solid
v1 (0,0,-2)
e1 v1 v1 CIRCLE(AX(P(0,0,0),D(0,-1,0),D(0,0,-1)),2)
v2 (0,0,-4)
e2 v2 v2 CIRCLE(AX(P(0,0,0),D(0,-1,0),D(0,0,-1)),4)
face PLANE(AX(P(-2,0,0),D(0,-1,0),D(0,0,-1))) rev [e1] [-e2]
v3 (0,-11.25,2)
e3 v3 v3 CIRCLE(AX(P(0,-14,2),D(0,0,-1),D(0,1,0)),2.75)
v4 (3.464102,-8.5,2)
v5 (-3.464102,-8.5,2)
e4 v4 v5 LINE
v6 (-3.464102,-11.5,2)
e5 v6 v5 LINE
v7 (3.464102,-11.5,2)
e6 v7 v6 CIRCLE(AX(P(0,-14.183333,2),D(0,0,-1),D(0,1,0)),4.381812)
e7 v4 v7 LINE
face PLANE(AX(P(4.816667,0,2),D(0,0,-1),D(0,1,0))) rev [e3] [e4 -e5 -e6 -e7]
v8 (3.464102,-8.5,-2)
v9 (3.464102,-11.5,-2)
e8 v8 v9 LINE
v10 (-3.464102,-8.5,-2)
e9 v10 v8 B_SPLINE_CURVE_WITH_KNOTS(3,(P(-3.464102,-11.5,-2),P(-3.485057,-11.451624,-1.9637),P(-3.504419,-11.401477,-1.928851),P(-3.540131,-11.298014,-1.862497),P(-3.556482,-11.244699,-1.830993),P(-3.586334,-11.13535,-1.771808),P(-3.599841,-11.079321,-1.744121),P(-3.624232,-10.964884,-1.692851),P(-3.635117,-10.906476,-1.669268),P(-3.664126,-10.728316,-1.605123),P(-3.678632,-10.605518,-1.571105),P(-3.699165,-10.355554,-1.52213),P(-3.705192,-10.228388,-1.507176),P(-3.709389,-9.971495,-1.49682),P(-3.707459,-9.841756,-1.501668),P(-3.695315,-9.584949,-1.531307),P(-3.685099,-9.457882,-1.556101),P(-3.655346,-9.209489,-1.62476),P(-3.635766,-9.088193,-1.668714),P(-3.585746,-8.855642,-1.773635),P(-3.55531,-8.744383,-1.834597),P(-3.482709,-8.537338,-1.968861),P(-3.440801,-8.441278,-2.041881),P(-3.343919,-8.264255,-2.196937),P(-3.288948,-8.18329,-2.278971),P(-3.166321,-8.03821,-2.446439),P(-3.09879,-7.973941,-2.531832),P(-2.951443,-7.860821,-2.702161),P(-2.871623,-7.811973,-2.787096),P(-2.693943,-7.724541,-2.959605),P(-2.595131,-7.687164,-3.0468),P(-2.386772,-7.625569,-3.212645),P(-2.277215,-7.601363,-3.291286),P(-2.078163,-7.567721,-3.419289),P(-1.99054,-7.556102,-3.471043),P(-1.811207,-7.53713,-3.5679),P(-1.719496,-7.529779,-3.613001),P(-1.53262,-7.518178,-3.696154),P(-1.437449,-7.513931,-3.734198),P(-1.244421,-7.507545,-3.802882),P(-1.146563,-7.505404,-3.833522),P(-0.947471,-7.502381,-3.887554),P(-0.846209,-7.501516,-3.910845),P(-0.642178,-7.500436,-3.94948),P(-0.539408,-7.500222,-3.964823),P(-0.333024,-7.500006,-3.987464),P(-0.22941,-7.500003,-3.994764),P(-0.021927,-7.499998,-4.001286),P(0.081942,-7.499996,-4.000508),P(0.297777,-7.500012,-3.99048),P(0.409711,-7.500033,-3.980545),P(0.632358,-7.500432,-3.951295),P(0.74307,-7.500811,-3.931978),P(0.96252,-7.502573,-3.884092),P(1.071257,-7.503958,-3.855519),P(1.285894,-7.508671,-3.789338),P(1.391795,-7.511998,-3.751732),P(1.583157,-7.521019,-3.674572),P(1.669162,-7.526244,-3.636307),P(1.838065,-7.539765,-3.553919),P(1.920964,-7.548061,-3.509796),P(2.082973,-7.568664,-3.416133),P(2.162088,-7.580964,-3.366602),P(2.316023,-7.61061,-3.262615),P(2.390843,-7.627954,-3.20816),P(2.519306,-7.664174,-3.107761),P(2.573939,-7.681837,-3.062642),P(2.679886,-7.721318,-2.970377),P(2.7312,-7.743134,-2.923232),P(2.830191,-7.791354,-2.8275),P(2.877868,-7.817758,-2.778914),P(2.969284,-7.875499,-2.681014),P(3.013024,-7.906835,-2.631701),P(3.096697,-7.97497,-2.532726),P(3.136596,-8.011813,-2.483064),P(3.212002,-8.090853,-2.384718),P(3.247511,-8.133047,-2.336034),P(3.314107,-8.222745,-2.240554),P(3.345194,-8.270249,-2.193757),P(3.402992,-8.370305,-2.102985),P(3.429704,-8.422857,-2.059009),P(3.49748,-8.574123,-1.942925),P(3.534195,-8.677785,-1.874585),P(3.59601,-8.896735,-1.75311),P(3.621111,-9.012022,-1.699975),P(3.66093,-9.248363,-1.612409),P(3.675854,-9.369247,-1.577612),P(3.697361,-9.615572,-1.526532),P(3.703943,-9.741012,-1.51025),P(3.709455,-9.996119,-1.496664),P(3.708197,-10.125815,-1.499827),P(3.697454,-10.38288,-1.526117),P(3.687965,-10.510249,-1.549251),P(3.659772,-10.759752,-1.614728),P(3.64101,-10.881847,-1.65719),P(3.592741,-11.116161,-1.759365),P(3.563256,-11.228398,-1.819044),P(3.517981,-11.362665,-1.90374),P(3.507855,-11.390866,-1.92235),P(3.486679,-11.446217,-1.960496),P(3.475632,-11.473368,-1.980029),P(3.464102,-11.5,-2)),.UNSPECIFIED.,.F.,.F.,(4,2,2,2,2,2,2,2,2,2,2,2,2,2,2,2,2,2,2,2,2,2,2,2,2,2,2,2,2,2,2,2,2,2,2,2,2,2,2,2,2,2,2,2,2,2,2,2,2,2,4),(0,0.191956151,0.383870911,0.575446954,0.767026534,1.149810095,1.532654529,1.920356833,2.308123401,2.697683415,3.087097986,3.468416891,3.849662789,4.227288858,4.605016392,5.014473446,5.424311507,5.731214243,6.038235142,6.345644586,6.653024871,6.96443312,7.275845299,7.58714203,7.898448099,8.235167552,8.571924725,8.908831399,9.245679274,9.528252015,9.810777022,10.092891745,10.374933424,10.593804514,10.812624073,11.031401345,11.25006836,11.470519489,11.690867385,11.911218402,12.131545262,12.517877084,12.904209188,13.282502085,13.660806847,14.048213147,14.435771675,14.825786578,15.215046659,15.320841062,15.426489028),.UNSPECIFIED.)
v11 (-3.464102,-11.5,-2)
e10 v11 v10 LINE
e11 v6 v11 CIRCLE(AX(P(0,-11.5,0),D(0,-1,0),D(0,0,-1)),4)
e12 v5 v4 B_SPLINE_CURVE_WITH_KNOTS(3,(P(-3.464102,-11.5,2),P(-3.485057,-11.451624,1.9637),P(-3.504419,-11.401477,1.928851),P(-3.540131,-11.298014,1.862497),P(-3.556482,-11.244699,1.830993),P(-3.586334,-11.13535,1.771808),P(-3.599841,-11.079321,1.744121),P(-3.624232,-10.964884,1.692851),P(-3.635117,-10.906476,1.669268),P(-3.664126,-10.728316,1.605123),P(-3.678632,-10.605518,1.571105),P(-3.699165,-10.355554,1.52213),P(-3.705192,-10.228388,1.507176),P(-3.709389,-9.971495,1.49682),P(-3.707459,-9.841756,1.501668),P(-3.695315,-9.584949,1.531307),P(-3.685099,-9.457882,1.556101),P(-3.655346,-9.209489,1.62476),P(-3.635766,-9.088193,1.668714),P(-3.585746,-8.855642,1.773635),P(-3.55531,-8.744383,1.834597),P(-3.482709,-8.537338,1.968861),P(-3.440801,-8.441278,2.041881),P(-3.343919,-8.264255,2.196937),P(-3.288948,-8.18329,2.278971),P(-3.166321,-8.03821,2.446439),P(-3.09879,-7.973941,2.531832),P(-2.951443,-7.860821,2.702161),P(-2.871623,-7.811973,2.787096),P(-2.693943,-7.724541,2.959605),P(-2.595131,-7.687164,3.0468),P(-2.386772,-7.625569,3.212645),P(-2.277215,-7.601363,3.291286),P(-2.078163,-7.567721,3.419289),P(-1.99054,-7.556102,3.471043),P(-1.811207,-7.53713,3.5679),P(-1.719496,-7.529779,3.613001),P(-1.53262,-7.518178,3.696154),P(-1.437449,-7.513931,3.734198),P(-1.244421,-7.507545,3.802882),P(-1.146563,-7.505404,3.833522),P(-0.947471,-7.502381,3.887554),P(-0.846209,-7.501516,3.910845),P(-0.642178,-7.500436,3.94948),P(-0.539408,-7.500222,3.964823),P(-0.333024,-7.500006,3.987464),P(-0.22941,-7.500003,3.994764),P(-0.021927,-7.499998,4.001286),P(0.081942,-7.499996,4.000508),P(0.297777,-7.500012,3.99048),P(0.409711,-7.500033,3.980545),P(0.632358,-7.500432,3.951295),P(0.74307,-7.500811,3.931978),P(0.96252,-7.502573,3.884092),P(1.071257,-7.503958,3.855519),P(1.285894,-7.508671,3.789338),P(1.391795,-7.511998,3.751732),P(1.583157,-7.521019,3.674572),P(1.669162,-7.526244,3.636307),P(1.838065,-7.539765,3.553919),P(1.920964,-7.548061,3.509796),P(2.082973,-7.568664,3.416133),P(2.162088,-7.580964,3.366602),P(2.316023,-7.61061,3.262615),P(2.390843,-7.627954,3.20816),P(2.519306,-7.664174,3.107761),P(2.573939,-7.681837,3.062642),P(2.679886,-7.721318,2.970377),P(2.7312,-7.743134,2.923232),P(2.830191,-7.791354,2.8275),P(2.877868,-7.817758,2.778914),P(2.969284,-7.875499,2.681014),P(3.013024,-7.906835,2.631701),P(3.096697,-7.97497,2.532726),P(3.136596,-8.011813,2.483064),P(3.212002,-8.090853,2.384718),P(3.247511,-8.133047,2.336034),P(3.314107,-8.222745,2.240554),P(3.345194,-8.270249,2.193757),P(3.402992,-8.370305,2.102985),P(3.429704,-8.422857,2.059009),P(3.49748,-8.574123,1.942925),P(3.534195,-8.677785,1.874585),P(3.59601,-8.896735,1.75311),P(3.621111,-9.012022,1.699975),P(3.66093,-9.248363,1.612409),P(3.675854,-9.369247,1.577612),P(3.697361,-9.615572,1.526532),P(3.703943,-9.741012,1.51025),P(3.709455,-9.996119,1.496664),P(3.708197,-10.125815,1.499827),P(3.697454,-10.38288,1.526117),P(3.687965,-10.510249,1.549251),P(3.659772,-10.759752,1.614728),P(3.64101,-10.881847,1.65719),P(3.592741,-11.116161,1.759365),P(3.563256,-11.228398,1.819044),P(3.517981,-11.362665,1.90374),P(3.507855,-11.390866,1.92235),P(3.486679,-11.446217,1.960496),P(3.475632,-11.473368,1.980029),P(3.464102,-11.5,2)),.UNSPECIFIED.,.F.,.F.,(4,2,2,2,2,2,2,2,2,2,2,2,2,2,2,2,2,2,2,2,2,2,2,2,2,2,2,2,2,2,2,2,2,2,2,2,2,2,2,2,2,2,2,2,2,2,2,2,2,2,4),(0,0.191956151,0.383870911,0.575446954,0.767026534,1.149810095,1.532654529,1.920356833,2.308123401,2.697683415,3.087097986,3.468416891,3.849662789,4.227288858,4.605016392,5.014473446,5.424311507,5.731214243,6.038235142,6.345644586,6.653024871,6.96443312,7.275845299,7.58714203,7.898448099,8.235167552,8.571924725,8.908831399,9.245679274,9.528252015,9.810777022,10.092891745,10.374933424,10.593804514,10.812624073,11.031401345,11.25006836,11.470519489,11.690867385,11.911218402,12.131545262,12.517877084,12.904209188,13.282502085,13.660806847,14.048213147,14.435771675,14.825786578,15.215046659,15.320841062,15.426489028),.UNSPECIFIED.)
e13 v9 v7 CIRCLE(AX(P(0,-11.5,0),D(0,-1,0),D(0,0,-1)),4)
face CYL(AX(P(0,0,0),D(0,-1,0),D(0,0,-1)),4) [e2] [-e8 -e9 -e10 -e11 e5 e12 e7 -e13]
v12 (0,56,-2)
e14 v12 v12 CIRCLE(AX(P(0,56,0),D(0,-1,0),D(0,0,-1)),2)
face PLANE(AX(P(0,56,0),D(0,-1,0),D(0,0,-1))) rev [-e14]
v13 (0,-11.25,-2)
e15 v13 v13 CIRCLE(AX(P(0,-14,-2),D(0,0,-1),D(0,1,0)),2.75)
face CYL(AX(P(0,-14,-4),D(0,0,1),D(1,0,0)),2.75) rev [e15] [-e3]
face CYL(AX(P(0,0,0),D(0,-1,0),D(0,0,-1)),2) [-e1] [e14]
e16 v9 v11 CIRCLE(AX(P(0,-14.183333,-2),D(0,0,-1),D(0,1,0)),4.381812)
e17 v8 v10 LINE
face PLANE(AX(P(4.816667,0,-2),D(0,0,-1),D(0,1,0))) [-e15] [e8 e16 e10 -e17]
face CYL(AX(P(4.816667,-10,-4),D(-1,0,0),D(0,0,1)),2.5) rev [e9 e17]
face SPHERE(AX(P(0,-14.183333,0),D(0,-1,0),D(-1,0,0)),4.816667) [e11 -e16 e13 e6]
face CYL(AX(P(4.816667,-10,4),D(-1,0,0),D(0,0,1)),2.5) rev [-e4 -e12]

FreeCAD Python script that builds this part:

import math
import FreeCAD as App
import Part
import Sketcher
Q = App.Units.Quantity

doc = App.newDocument("Part")
body = doc.addObject("PartDesign::Body", "Body")

# Sketch on XY plane
sketch1 = body.newObject("Sketcher::SketchObject", "Sketch")
sketch1.AttachmentSupport = (doc.getObject("XY_Plane"), [""])
sketch1.MapMode = "FlatFace"
sketch1.addGeometry([
    Part.LineSegment(App.Vector(0, 56, 0), App.Vector(-2, 56, 0)),  # 0
    Part.LineSegment(App.Vector(-2, 56, 0), App.Vector(-2, 0, 0)),  # 1
    Part.LineSegment(App.Vector(-2, 0, 0), App.Vector(-4, 0, 0)),  # 2
    Part.LineSegment(App.Vector(-4, 0, 0), App.Vector(-4, -11.5, 0)),  # 3
    Part.ArcOfCircle(Part.Circle(App.Vector(0, -14.183333, 0), App.Vector(0, 0, 1), 4.816667), math.radians(146.144974), math.radians(270)),  # 4
    Part.LineSegment(App.Vector(0, -19, 0), App.Vector(0, 56, 0)),  # 5
], False)
sketch1.addConstraint([
    Sketcher.Constraint("Coincident", 0, 2, 1, 1),
    Sketcher.Constraint("Coincident", 1, 2, 2, 1),
    Sketcher.Constraint("Coincident", 2, 2, 3, 1),
    Sketcher.Constraint("Coincident", 3, 2, 4, 1),
    Sketcher.Constraint("Coincident", 4, 2, 5, 1),
    Sketcher.Constraint("Coincident", 5, 2, 0, 1),
    Sketcher.Constraint("Horizontal", 0),
    Sketcher.Constraint("Vertical", 1),
    Sketcher.Constraint("Horizontal", 2),
    Sketcher.Constraint("Vertical", 3),
    Sketcher.Constraint("Vertical", 5),
    Sketcher.Constraint("PointOnObject", 4, 3, -2),
    Sketcher.Constraint("PointOnObject", 1, 2, -1),
    Sketcher.Constraint("PointOnObject", 4, 2, -2),
    Sketcher.Constraint("Equal", 0, 2),
    Sketcher.Constraint("DistanceX", 0, 2, 0, 1, Q("2 mm")),
    Sketcher.Constraint("DistanceY", 1, 2, 1, 1, Q("56 mm")),
    Sketcher.Constraint("DistanceY", 5, 1, 5, 2, Q("75 mm")),
    Sketcher.Constraint("DistanceY", 3, 2, 3, 1, Q("11.5 mm")),
])
revolution = body.newObject("PartDesign::Revolution", "Revolution")
revolution.Profile = sketch1
revolution.ReferenceAxis = (sketch1, ["V_Axis"])
revolution.Angle = 360

# Sketch on YZ plane
sketch2 = body.newObject("Sketcher::SketchObject", "Sketch001")
sketch2.AttachmentSupport = (doc.getObject("YZ_Plane"), [""])
sketch2.MapMode = "FlatFace"
sketch2.addGeometry([
    Part.ArcOfCircle(Part.Circle(App.Vector(-10, 4, 0), App.Vector(0, 0, 1), 2.5), math.radians(-53.130102), math.radians(0)),  # 0
    Part.LineSegment(App.Vector(-7.5, 4, 0), App.Vector(-8.077978, 4, 0)),  # 1
    Part.ArcOfCircle(Part.Circle(App.Vector(-12.749434, 0, 0), App.Vector(0, 0, 1), 6.15), math.radians(40.572258), math.radians(161.022111)),  # 2
    Part.LineSegment(App.Vector(-18.565145, 2, 0), App.Vector(-8.5, 2, 0)),  # 3
    Part.LineSegment(App.Vector(-8.077978, -4, 0), App.Vector(-7.5, -4, 0)),  # 4
    Part.ArcOfCircle(Part.Circle(App.Vector(-10, -4, 0), App.Vector(0, 0, 1), 2.5), math.radians(0), math.radians(53.130102)),  # 5
    Part.LineSegment(App.Vector(-8.5, -2, 0), App.Vector(-18.565145, -2, 0)),  # 6
    Part.ArcOfCircle(Part.Circle(App.Vector(-12.749434, 0, 0), App.Vector(0, 0, 1), 6.15), math.radians(-161.022111), math.radians(-40.572258)),  # 7
], False)
sketch2.addConstraint([
    Sketcher.Constraint("Coincident", 0, 2, 1, 1),
    Sketcher.Constraint("Coincident", 1, 2, 2, 1),
    Sketcher.Constraint("Coincident", 2, 2, 3, 1),
    Sketcher.Constraint("Coincident", 3, 2, 0, 1),
    Sketcher.Constraint("Coincident", 4, 2, 5, 1),
    Sketcher.Constraint("Coincident", 5, 2, 6, 1),
    Sketcher.Constraint("Coincident", 6, 2, 7, 1),
    Sketcher.Constraint("Coincident", 7, 2, 4, 1),
    Sketcher.Constraint("Horizontal", 1),
    Sketcher.Constraint("Horizontal", 3),
    Sketcher.Constraint("Horizontal", 4),
    Sketcher.Constraint("Horizontal", 6),
    Sketcher.Constraint("Coincident", 7, 3, 2, 3),
    Sketcher.Constraint("Equal", 0, 5),
    Sketcher.Constraint("Equal", 2, 7),
    Sketcher.Constraint("Symmetric", 0, 3, 5, 3, -1),
    Sketcher.Constraint("Symmetric", 2, 2, 6, 2, -1),
    Sketcher.Constraint("Horizontal", 5, 3, 4, 2),
    Sketcher.Constraint("Vertical", 1, 2, 7, 2),
    Sketcher.Constraint("Radius", 0, Q("2.5 mm")),
    Sketcher.Constraint("Radius", 2, Q("6.15 mm")),
    Sketcher.Constraint("DistanceX", 0, 3, -1, 1, Q("10 mm")),
    Sketcher.Constraint("DistanceY", -1, 1, 0, 3, Q("4 mm")),
    Sketcher.Constraint("DistanceY", -1, 1, 2, 2, Q("2 mm")),
    Sketcher.Constraint("DistanceX", 1, 2, 1, 1, Q("0.577978 mm")),
])
pocket1 = body.newObject("PartDesign::Pocket", "Pocket")
pocket1.Profile = sketch2
pocket1.Type = "ThroughAll"
pocket1.Midplane = True

# Sketch on XY plane
sketch3 = body.newObject("Sketcher::SketchObject", "Sketch002")
sketch3.AttachmentSupport = (doc.getObject("XY_Plane"), [""])
sketch3.MapMode = "FlatFace"
sketch3.AttachmentOffset = App.Placement(App.Vector(0, 0, 2), App.Rotation())
sketch3.addGeometry(Part.Circle(App.Vector(0, -14, 0), App.Vector(0, 0, 1), 2.75), False)
sketch3.addConstraint([
    Sketcher.Constraint("PointOnObject", 0, 3, -2),
    Sketcher.Constraint("Diameter", 0, Q("5.5 mm")),
    Sketcher.Constraint("DistanceY", 0, 3, -1, 1, Q("14 mm")),
])
pocket2 = body.newObject("PartDesign::Pocket", "Pocket001")
pocket2.Profile = sketch3
pocket2.Type = "ThroughAll"
pocket2.Midplane = True

doc.recompute()
